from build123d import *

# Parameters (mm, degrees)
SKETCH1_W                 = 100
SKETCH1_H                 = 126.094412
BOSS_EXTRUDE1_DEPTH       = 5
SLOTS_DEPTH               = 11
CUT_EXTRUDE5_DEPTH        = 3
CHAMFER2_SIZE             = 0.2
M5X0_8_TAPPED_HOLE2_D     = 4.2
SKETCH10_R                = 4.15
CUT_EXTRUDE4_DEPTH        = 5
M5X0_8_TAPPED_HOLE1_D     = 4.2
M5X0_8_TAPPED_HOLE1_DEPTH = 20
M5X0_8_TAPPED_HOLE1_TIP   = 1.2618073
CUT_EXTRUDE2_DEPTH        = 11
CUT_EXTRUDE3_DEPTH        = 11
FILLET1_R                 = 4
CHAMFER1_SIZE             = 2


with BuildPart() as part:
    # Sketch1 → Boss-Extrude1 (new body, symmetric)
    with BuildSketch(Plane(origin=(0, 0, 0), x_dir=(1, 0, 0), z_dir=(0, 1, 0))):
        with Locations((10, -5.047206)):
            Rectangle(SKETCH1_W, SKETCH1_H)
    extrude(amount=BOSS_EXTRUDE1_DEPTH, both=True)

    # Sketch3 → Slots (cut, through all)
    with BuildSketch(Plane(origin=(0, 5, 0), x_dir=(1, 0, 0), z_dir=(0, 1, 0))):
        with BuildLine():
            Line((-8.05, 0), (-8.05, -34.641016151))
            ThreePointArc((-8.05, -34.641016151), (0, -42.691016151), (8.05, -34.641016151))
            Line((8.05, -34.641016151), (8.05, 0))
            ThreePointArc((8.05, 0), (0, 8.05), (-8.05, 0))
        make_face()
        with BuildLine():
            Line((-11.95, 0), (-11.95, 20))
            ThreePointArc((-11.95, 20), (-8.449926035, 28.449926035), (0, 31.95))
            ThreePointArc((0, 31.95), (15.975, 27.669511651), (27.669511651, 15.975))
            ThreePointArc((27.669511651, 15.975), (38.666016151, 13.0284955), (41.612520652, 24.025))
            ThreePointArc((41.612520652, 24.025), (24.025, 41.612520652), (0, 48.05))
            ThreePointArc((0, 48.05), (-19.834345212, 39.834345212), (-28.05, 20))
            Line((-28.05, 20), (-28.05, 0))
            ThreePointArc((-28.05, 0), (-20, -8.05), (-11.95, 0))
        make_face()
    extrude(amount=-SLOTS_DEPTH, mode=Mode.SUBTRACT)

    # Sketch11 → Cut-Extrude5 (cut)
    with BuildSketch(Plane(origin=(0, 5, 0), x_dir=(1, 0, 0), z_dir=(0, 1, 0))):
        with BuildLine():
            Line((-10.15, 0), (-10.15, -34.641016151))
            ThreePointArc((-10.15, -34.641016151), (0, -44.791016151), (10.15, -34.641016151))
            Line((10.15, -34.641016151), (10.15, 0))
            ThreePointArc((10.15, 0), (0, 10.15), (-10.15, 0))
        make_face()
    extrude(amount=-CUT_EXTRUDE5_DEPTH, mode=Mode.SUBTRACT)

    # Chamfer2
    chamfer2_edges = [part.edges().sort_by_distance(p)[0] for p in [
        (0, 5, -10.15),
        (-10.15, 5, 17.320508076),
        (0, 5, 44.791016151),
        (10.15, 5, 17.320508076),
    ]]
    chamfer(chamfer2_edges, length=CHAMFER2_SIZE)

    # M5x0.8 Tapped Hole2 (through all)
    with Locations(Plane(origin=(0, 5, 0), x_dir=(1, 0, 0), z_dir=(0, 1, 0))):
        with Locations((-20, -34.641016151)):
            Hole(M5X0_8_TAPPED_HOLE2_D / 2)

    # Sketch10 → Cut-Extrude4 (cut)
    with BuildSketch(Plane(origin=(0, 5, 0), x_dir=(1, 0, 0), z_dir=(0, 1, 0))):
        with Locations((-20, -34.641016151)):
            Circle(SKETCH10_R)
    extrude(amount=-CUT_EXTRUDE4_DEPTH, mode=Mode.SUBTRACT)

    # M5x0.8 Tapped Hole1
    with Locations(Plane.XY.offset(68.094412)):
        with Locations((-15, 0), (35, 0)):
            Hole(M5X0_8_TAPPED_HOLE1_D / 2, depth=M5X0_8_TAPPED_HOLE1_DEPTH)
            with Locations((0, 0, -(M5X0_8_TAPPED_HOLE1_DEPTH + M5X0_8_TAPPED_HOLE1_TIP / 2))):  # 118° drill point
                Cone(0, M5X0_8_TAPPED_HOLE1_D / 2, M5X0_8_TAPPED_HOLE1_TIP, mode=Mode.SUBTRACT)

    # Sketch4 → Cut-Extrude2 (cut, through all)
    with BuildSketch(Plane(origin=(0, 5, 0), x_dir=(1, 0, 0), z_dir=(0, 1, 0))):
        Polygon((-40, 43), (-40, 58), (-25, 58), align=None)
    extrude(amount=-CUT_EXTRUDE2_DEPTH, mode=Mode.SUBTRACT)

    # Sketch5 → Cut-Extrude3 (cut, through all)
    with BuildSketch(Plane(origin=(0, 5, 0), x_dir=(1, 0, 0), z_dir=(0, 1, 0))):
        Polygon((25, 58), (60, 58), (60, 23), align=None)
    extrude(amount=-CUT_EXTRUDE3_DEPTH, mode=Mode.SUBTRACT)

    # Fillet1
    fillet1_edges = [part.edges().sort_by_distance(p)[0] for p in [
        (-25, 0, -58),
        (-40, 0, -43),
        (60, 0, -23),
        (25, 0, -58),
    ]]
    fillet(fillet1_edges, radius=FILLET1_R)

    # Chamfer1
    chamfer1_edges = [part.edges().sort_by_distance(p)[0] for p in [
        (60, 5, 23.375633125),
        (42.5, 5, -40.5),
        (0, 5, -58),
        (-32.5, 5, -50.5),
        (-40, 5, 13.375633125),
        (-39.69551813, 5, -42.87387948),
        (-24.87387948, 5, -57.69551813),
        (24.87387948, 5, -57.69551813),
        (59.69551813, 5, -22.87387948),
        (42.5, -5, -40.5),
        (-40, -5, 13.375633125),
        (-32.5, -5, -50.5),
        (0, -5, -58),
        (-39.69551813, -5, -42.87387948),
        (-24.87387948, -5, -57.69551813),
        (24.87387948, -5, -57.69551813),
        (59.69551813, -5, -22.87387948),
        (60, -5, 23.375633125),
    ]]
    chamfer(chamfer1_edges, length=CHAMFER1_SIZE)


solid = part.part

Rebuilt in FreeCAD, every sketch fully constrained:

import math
import FreeCAD as App
import Part
import Sketcher
Q = App.Units.Quantity


def edges_at(feature, points):
    """Names of the edges that pass closest to the given points."""
    edges = feature.Shape.Edges
    near = lambda p: min(range(len(edges)), key=lambda i: edges[i].distToShape(Part.Vertex(*p))[0])
    return sorted({f"Edge{near(p) + 1}" for p in points})


def add_polygon(sketch, points):
    """Adds a closed chain of lines whose ends are joined by coincident constraints."""
    first, n = sketch.GeometryCount, len(points)
    for a, b in zip(points, points[1:] + points[:1]):
        sketch.addGeometry(Part.LineSegment(App.Vector(*a, 0), App.Vector(*b, 0)), False)
    for i in range(n):
        sketch.addConstraint(Sketcher.Constraint("Coincident", first + i, 2, first + (i + 1) % n, 1))

doc = App.newDocument("Part")
body = doc.addObject("PartDesign::Body", "Body")

# Sketch on XZ plane
sketch1 = body.newObject("Sketcher::SketchObject", "Sketch")
sketch1.AttachmentSupport = (doc.getObject("XZ_Plane"), [""])
sketch1.MapMode = "FlatFace"
add_polygon(sketch1, [(-40, -58), (-40, 68), (60, 68), (60, -58)])  # lines 0-3
sketch1.addConstraint([
    Sketcher.Constraint("Vertical", 0),
    Sketcher.Constraint("Horizontal", 1),
    Sketcher.Constraint("Vertical", 2),
    Sketcher.Constraint("Horizontal", 3),
    Sketcher.Constraint("DistanceX", 1, 1, 1, 2, Q("100 mm")),
    Sketcher.Constraint("DistanceX", 0, 2, -1, 1, Q("40 mm")),
    Sketcher.Constraint("DistanceY", 2, 2, -1, 1, Q("58 mm")),
    Sketcher.Constraint("DistanceY", 0, 1, 0, 2, Q("126.094412 mm")),
])
pad1 = body.newObject("PartDesign::Pad", "Pad")
pad1.Profile = sketch1
pad1.Length = 10
pad1.Midplane = True

# Sketch on XZ plane
sketch2 = body.newObject("Sketcher::SketchObject", "Sketch001")
sketch2.AttachmentSupport = (doc.getObject("XZ_Plane"), [""])
sketch2.MapMode = "FlatFace"
sketch2.AttachmentOffset = App.Placement(App.Vector(0, 0, -5), App.Rotation())
sketch2.addGeometry([
    Part.LineSegment(App.Vector(-8, 0, 0), App.Vector(-8, 35, 0)),  # 0
    Part.ArcOfCircle(Part.Circle(App.Vector(0, 35, 0), App.Vector(0, 0, 1), 8), math.radians(0), math.radians(180)),  # 1
    Part.LineSegment(App.Vector(8, 35, 0), App.Vector(8, 0, 0)),  # 2
    Part.ArcOfCircle(Part.Circle(App.Vector(0, 0, 0), App.Vector(0, 0, 1), 8), math.radians(180), math.radians(360)),  # 3
    Part.LineSegment(App.Vector(-12, 0, 0), App.Vector(-12, -20, 0)),  # 4
    Part.ArcOfCircle(Part.Circle(App.Vector(0, -20, 0), App.Vector(0, 0, 1), 12), math.radians(-180), math.radians(-90)),  # 5
    Part.ArcOfCircle(Part.Circle(App.Vector(0, 0, 0), App.Vector(0, 0, 1), 32), math.radians(-90), math.radians(-30)),  # 6
    Part.ArcOfCircle(Part.Circle(App.Vector(35, -20, 0), App.Vector(0, 0, 1), 8), math.radians(-30), math.radians(150)),  # 7
    Part.ArcOfCircle(Part.Circle(App.Vector(0, 0, 0), App.Vector(0, 0, 1), 48), math.radians(-90), math.radians(-30)),  # 8
    Part.ArcOfCircle(Part.Circle(App.Vector(0, -20, 0), App.Vector(0, 0, 1), 28), math.radians(-180), math.radians(-90)),  # 9
    Part.LineSegment(App.Vector(-28, -20, 0), App.Vector(-28, 0, 0)),  # 10
    Part.ArcOfCircle(Part.Circle(App.Vector(-20, 0, 0), App.Vector(0, 0, 1), 8), math.radians(0), math.radians(180)),  # 11
], False)
sketch2.addConstraint([
    Sketcher.Constraint("Tangent", 0, 2, 1, 2),
    Sketcher.Constraint("Tangent", 1, 1, 2, 1),
    Sketcher.Constraint("Tangent", 2, 2, 3, 2),
    Sketcher.Constraint("Tangent", 3, 1, 0, 1),
    Sketcher.Constraint("Tangent", 4, 2, 5, 1),
    Sketcher.Constraint("Tangent", 5, 2, 6, 1),
    Sketcher.Constraint("Tangent", 6, 2, 7, 2),
    Sketcher.Constraint("Tangent", 7, 1, 8, 2),
    Sketcher.Constraint("Tangent", 8, 1, 9, 2),
    Sketcher.Constraint("Tangent", 9, 1, 10, 1),
    Sketcher.Constraint("Tangent", 10, 2, 11, 2),
    Sketcher.Constraint("Tangent", 11, 1, 4, 1),
    Sketcher.Constraint("Vertical", 0),
    Sketcher.Constraint("Vertical", 2),
    Sketcher.Constraint("Vertical", 4),
    Sketcher.Constraint("Vertical", 10),
    Sketcher.Constraint("Coincident", 3, 3, -1, 1),
    Sketcher.Constraint("Coincident", 6, 3, -1, 1),
    Sketcher.Constraint("Coincident", 8, 3, -1, 1),
    Sketcher.Constraint("Coincident", 9, 3, 5, 3),
    Sketcher.Constraint("Equal", 3, 7),
    Sketcher.Constraint("PointOnObject", 5, 3, -2),
    Sketcher.Constraint("PointOnObject", 11, 3, -1),
    Sketcher.Constraint("Horizontal", 5, 3, 7, 3),
    Sketcher.Constraint("DistanceY", 4, 2, 4, 1, Q("20 mm")),
    Sketcher.Constraint("Radius", 1, Q("8.05 mm")),
    Sketcher.Constraint("Radius", 5, Q("11.95 mm")),
    Sketcher.Constraint("DistanceY", 0, 1, 0, 2, Q("34.641016 mm")),
])
pocket1 = body.newObject("PartDesign::Pocket", "Pocket")
pocket1.Profile = sketch2
pocket1.Type = "ThroughAll"
pocket1.Reversed = True

# Sketch on XZ plane
sketch3 = body.newObject("Sketcher::SketchObject", "Sketch002")
sketch3.AttachmentSupport = (doc.getObject("XZ_Plane"), [""])
sketch3.MapMode = "FlatFace"
sketch3.AttachmentOffset = App.Placement(App.Vector(0, 0, -5), App.Rotation())
sketch3.addGeometry([
    Part.LineSegment(App.Vector(-10, 0, 0), App.Vector(-10, 35, 0)),
    Part.ArcOfCircle(Part.Circle(App.Vector(0, 35, 0), App.Vector(0, 0, 1), 10), math.radians(0), math.radians(180)),
    Part.LineSegment(App.Vector(10, 35, 0), App.Vector(10, 0, 0)),
    Part.ArcOfCircle(Part.Circle(App.Vector(0, 0, 0), App.Vector(0, 0, 1), 10), math.radians(180), math.radians(360)),
], False)
sketch3.addConstraint([
    Sketcher.Constraint("Tangent", 0, 2, 1, 2),
    Sketcher.Constraint("Tangent", 1, 1, 2, 1),
    Sketcher.Constraint("Tangent", 2, 2, 3, 2),
    Sketcher.Constraint("Tangent", 3, 1, 0, 1),
    Sketcher.Constraint("Vertical", 0),
    Sketcher.Constraint("Vertical", 2),
    Sketcher.Constraint("Coincident", 3, 3, -1, 1),
    Sketcher.Constraint("Radius", 1, Q("10.15 mm")),
    Sketcher.Constraint("DistanceY", 0, 1, 0, 2, Q("34.641016 mm")),
])
pocket2 = body.newObject("PartDesign::Pocket", "Pocket001")
pocket2.Profile = sketch3
pocket2.Length = 3
pocket2.Reversed = True
doc.recompute()

chamfer = body.newObject("PartDesign::Chamfer", "Chamfer")
chamfer.Base = (pocket2, edges_at(pocket2, [
    (0, 5, -10.15),
    (-10.15, 5, 17.321),
    (0, 5, 44.791),
    (10.15, 5, 17.321),
]))
chamfer.Size = 0.2

# Sketch on XZ plane
sketch4 = body.newObject("Sketcher::SketchObject", "Sketch003")
sketch4.AttachmentSupport = (doc.getObject("XZ_Plane"), [""])
sketch4.MapMode = "FlatFace"
sketch4.AttachmentOffset = App.Placement(App.Vector(0, 0, -5), App.Rotation())
sketch4.addGeometry(Part.Circle(App.Vector(-20, 34.6, 0), App.Vector(0, 0, 1), 2.1), False)
sketch4.addConstraint([
    Sketcher.Constraint("Diameter", 0, Q("4.2 mm")),
    Sketcher.Constraint("DistanceX", 0, 3, -1, 1, Q("20 mm")),
    Sketcher.Constraint("DistanceY", -1, 1, 0, 3, Q("34.641016 mm")),
])
doc.recompute()
hole = body.newObject("PartDesign::Hole", "Hole")
hole.Profile = sketch4
hole.ThreadType = "None"
hole.Diameter = 4.2
hole.DepthType = "ThroughAll"
hole.Reversed = True

# Sketch on XZ plane
sketch5 = body.newObject("Sketcher::SketchObject", "Sketch004")
sketch5.AttachmentSupport = (doc.getObject("XZ_Plane"), [""])
sketch5.MapMode = "FlatFace"
sketch5.AttachmentOffset = App.Placement(App.Vector(0, 0, -5), App.Rotation())
sketch5.addGeometry(Part.Circle(App.Vector(-20, 34.6, 0), App.Vector(0, 0, 1), 4.2), False)
sketch5.addConstraint([
    Sketcher.Constraint("Diameter", 0, Q("8.3 mm")),
    Sketcher.Constraint("DistanceX", 0, 3, -1, 1, Q("20 mm")),
    Sketcher.Constraint("DistanceY", -1, 1, 0, 3, Q("34.641016 mm")),
])
pocket3 = body.newObject("PartDesign::Pocket", "Pocket002")
pocket3.Profile = sketch5
pocket3.Length = 5
pocket3.Reversed = True

# Sketch on XY plane
sketch6 = body.newObject("Sketcher::SketchObject", "Sketch005")
sketch6.AttachmentSupport = (doc.getObject("XY_Plane"), [""])
sketch6.MapMode = "FlatFace"
sketch6.AttachmentOffset = App.Placement(App.Vector(0, 0, 68.094412), App.Rotation())
sketch6.addGeometry([
    Part.Circle(App.Vector(-15, 0, 0), App.Vector(0, 0, 1), 2.1),
    Part.Circle(App.Vector(35, 0, 0), App.Vector(0, 0, 1), 2.1),
], False)
sketch6.addConstraint([
    Sketcher.Constraint("Equal", 0, 1),
    Sketcher.Constraint("PointOnObject", 0, 3, -1),
    Sketcher.Constraint("PointOnObject", 1, 3, -1),
    Sketcher.Constraint("Diameter", 0, Q("4.2 mm")),
    Sketcher.Constraint("DistanceX", 0, 3, -1, 1, Q("15 mm")),
    Sketcher.Constraint("DistanceX", -1, 1, 1, 3, Q("35 mm")),
])
doc.recompute()
hole2 = body.newObject("PartDesign::Hole", "Hole001")
hole2.Profile = sketch6
hole2.ThreadType = "None"
hole2.Diameter = 4.2
hole2.DepthType = "Dimension"
hole2.Depth = 20
hole2.DrillPoint = "Angled"
hole2.DrillPointAngle = 118

# Sketch on XZ plane
sketch7 = body.newObject("Sketcher::SketchObject", "Sketch006")
sketch7.AttachmentSupport = (doc.getObject("XZ_Plane"), [""])
sketch7.MapMode = "FlatFace"
sketch7.AttachmentOffset = App.Placement(App.Vector(0, 0, -5), App.Rotation())
add_polygon(sketch7, [(-40, -58), (-40, -43), (-25, -58)])  # lines 0-2
sketch7.addConstraint([
    Sketcher.Constraint("Vertical", 0),
    Sketcher.Constraint("Horizontal", 2),
    Sketcher.Constraint("Equal", 2, 0),
    Sketcher.Constraint("DistanceX", 2, 2, 2, 1, Q("15 mm")),
    Sketcher.Constraint("DistanceX", 0, 2, -1, 1, Q("40 mm")),
    Sketcher.Constraint("DistanceY", 0, 2, -1, 1, Q("43 mm")),
])
pocket4 = body.newObject("PartDesign::Pocket", "Pocket003")
pocket4.Profile = sketch7
pocket4.Type = "ThroughAll"
pocket4.Reversed = True

# Sketch on XZ plane
sketch8 = body.newObject("Sketcher::SketchObject", "Sketch007")
sketch8.AttachmentSupport = (doc.getObject("XZ_Plane"), [""])
sketch8.MapMode = "FlatFace"
sketch8.AttachmentOffset = App.Placement(App.Vector(0, 0, -5), App.Rotation())
add_polygon(sketch8, [(60, -58), (25, -58), (60, -23)])  # lines 0-2
sketch8.addConstraint([
    Sketcher.Constraint("Horizontal", 0),
    Sketcher.Constraint("Vertical", 2),
    Sketcher.Constraint("Equal", 0, 2),
    Sketcher.Constraint("DistanceX", 0, 2, 0, 1, Q("35 mm")),
    Sketcher.Constraint("DistanceX", -1, 1, 0, 2, Q("25 mm")),
    Sketcher.Constraint("DistanceY", 0, 2, -1, 1, Q("58 mm")),
])
pocket5 = body.newObject("PartDesign::Pocket", "Pocket004")
pocket5.Profile = sketch8
pocket5.Type = "ThroughAll"
pocket5.Reversed = True
doc.recompute()

fillet = body.newObject("PartDesign::Fillet", "Fillet")
fillet.Base = (pocket5, edges_at(pocket5, [
    (-25, 0, -58),
    (-40, 0, -43),
    (60, 0, -23),
    (25, 0, -58),
]))
fillet.Radius = 4
doc.recompute()

chamfer2 = body.newObject("PartDesign::Chamfer", "Chamfer001")
chamfer2.Base = (fillet, edges_at(fillet, [
    (60, 5, 23.376),
    (42.5, 5, -40.5),
    (0, 5, -58),
    (-32.5, 5, -50.5),
    (-40, 5, 13.376),
    (-39.696, 5, -42.874),
    (-24.874, 5, -57.696),
    (24.874, 5, -57.696),
    (59.696, 5, -22.874),
    (42.5, -5, -40.5),
    (-40, -5, 13.376),
    (-32.5, -5, -50.5),
    (0, -5, -58),
    (-39.696, -5, -42.874),
    (-24.874, -5, -57.696),
    (24.874, -5, -57.696),
    (59.696, -5, -22.874),
    (60, -5, 23.376),
]))
chamfer2.Size = 2

doc.recompute()
